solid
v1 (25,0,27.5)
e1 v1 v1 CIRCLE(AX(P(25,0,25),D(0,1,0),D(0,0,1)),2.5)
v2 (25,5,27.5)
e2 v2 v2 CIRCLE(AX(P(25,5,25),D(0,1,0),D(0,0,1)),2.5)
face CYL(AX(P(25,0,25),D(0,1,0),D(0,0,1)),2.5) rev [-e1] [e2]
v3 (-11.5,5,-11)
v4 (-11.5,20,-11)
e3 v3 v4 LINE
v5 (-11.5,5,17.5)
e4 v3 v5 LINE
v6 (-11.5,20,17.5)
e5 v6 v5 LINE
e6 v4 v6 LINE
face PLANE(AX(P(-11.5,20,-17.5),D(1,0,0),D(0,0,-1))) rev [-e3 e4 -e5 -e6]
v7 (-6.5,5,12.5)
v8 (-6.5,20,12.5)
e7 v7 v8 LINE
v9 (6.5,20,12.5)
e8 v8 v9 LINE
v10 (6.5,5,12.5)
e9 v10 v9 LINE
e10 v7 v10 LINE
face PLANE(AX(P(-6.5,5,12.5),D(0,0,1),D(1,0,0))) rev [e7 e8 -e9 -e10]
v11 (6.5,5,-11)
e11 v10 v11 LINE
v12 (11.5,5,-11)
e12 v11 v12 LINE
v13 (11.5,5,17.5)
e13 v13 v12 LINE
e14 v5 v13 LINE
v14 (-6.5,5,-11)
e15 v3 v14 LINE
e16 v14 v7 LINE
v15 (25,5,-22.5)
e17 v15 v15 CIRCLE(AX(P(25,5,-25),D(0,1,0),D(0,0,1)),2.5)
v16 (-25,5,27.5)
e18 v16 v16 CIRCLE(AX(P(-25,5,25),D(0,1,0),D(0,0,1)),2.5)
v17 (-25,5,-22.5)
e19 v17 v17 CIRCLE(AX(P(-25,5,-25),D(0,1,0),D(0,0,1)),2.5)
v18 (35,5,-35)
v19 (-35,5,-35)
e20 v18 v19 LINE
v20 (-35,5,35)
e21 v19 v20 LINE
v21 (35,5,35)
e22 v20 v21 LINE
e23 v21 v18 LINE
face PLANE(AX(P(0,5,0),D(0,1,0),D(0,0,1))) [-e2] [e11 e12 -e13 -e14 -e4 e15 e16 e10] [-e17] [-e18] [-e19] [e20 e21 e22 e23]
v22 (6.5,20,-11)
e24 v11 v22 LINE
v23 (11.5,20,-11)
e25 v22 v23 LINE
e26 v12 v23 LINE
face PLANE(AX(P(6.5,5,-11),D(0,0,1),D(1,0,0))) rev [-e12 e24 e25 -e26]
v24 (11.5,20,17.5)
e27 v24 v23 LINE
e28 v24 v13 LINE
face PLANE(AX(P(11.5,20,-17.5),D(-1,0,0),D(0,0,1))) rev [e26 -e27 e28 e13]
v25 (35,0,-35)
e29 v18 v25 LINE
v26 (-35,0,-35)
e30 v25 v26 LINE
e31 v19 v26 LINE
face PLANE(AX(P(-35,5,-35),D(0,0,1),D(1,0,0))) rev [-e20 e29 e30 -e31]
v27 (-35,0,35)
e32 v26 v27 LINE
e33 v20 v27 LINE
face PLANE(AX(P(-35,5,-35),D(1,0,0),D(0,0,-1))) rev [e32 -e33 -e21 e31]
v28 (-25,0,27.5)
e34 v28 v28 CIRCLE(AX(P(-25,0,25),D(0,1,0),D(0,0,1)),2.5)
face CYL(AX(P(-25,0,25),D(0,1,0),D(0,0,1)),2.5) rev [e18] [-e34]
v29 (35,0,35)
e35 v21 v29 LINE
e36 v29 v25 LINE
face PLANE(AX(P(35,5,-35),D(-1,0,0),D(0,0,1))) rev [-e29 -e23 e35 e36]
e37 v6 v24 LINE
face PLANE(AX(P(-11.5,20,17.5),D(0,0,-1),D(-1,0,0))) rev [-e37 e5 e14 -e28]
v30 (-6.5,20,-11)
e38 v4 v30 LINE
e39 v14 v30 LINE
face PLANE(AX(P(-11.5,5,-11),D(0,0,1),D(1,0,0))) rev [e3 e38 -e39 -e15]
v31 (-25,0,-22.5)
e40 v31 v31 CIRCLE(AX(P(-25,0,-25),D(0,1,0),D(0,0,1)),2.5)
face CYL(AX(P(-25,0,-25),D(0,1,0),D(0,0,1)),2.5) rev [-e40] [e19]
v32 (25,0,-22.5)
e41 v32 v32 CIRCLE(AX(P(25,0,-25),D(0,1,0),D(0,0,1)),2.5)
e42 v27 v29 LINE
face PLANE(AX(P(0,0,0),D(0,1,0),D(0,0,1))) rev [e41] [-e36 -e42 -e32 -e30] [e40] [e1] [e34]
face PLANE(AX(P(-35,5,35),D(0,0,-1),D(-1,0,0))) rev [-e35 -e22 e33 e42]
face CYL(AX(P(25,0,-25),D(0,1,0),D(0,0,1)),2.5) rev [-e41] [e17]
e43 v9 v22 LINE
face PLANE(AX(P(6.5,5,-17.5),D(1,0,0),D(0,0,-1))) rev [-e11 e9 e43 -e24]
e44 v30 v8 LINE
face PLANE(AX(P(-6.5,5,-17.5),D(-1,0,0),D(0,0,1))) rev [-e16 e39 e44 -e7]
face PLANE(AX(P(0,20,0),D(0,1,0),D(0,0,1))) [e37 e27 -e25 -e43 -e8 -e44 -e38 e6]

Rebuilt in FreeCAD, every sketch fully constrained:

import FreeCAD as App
import Part
import Sketcher
from FreeCAD import Vector

doc = App.newDocument("Part")
body = doc.addObject("PartDesign::Body", "Body")

# Sketch on XZ plane
sketch1 = doc.addObject("Sketcher::SketchObject", "Sketch")
body.addObject(sketch1)
sketch1.AttachmentSupport = (doc.XZ_Plane, [""])
sketch1.MapMode = "FlatFace"
sketch1.addGeometry([
    Part.LineSegment(Vector(-35, -35, 0), Vector(-35, 35, 0)),
    Part.LineSegment(Vector(-35, 35, 0), Vector(35, 35, 0)),
    Part.LineSegment(Vector(35, 35, 0), Vector(35, -35, 0)),
    Part.LineSegment(Vector(35, -35, 0), Vector(-35, -35, 0)),
], False)
sketch1.addConstraint([
    Sketcher.Constraint("Coincident", 0, 2, 1, 1),
    Sketcher.Constraint("Coincident", 1, 2, 2, 1),
    Sketcher.Constraint("Coincident", 2, 2, 3, 1),
    Sketcher.Constraint("Coincident", 3, 2, 0, 1),
    Sketcher.Constraint("Vertical", 0),
    Sketcher.Constraint("Horizontal", 1),
    Sketcher.Constraint("Vertical", 2),
    Sketcher.Constraint("Horizontal", 3),
    Sketcher.Constraint("Symmetric", 0, 2, 2, 2, -1, 1),
    Sketcher.Constraint("Equal", 3, 0),
    Sketcher.Constraint("DistanceX", 1, 1, 1, 2, 70.0),
])
pad1 = doc.addObject("PartDesign::Pad", "Pad")
body.addObject(pad1)
pad1.Profile = sketch1
pad1.Length = 5
pad1.Reversed = True

# Sketch on XZ plane
sketch2 = doc.addObject("Sketcher::SketchObject", "Sketch001")
body.addObject(sketch2)
sketch2.AttachmentSupport = (doc.XZ_Plane, [""])
sketch2.MapMode = "FlatFace"
sketch2.AttachmentOffset = App.Placement(Vector(0, 0, -5), App.Rotation())
sketch2.addGeometry(Part.Circle(Vector(-25, -25, 0), Vector(0, 0, 1), 2.5), False)
sketch2.addConstraint([
    Sketcher.Constraint("Diameter", 0, 5.0),
    Sketcher.Constraint("DistanceX", 0, 3, -1, 1, 25.0),
    Sketcher.Constraint("DistanceY", 0, 3, -1, 1, 25.0),
])
pocket1 = doc.addObject("PartDesign::Pocket", "Pocket")
body.addObject(pocket1)
pocket1.Profile = sketch2
pocket1.Length = 5
pocket1.Reversed = True

# Sketch on XZ plane
sketch3 = doc.addObject("Sketcher::SketchObject", "Sketch002")
body.addObject(sketch3)
sketch3.AttachmentSupport = (doc.XZ_Plane, [""])
sketch3.MapMode = "FlatFace"
sketch3.AttachmentOffset = App.Placement(Vector(0, 0, -5), App.Rotation())
sketch3.addGeometry(Part.Circle(Vector(25, -25, 0), Vector(0, 0, 1), 2.5), False)
sketch3.addConstraint([
    Sketcher.Constraint("Diameter", 0, 5.0),
    Sketcher.Constraint("DistanceX", -1, 1, 0, 3, 25.0),
    Sketcher.Constraint("DistanceY", 0, 3, -1, 1, 25.0),
])
pocket2 = doc.addObject("PartDesign::Pocket", "Pocket001")
body.addObject(pocket2)
pocket2.Profile = sketch3
pocket2.Length = 5
pocket2.Reversed = True

# Sketch on XZ plane
sketch4 = doc.addObject("Sketcher::SketchObject", "Sketch003")
body.addObject(sketch4)
sketch4.AttachmentSupport = (doc.XZ_Plane, [""])
sketch4.MapMode = "FlatFace"
sketch4.AttachmentOffset = App.Placement(Vector(0, 0, -5), App.Rotation())
sketch4.addGeometry(Part.Circle(Vector(-25, 25, 0), Vector(0, 0, 1), 2.5), False)
sketch4.addConstraint([
    Sketcher.Constraint("Diameter", 0, 5.0),
    Sketcher.Constraint("DistanceX", 0, 3, -1, 1, 25.0),
    Sketcher.Constraint("DistanceY", -1, 1, 0, 3, 25.0),
])
pocket3 = doc.addObject("PartDesign::Pocket", "Pocket002")
body.addObject(pocket3)
pocket3.Profile = sketch4
pocket3.Length = 5
pocket3.Reversed = True

# Sketch on XZ plane
sketch5 = doc.addObject("Sketcher::SketchObject", "Sketch004")
body.addObject(sketch5)
sketch5.AttachmentSupport = (doc.XZ_Plane, [""])
sketch5.MapMode = "FlatFace"
sketch5.AttachmentOffset = App.Placement(Vector(0, 0, -5), App.Rotation())
sketch5.addGeometry(Part.Circle(Vector(25, 25, 0), Vector(0, 0, 1), 2.5), False)
sketch5.addConstraint([
    Sketcher.Constraint("Diameter", 0, 5.0),
    Sketcher.Constraint("DistanceX", -1, 1, 0, 3, 25.0),
    Sketcher.Constraint("DistanceY", -1, 1, 0, 3, 25.0),
])
pocket4 = doc.addObject("PartDesign::Pocket", "Pocket003")
body.addObject(pocket4)
pocket4.Profile = sketch5
pocket4.Length = 5
pocket4.Reversed = True

# Sketch on XZ plane
sketch6 = doc.addObject("Sketcher::SketchObject", "Sketch005")
body.addObject(sketch6)
sketch6.AttachmentSupport = (doc.XZ_Plane, [""])
sketch6.MapMode = "FlatFace"
sketch6.AttachmentOffset = App.Placement(Vector(0, 0, -5), App.Rotation())
sketch6.addGeometry([
    Part.LineSegment(Vector(-12, -18, 0), Vector(-12, 18, 0)),
    Part.LineSegment(Vector(-12, 18, 0), Vector(12, 18, 0)),
    Part.LineSegment(Vector(12, 18, 0), Vector(12, -18, 0)),
    Part.LineSegment(Vector(12, -18, 0), Vector(-12, -18, 0)),
], False)
sketch6.addConstraint([
    Sketcher.Constraint("Coincident", 0, 2, 1, 1),
    Sketcher.Constraint("Coincident", 1, 2, 2, 1),
    Sketcher.Constraint("Coincident", 2, 2, 3, 1),
    Sketcher.Constraint("Coincident", 3, 2, 0, 1),
    Sketcher.Constraint("Vertical", 0),
    Sketcher.Constraint("Horizontal", 1),
    Sketcher.Constraint("Vertical", 2),
    Sketcher.Constraint("Horizontal", 3),
    Sketcher.Constraint("Symmetric", 0, 2, 2, 2, -1, 1),
    Sketcher.Constraint("DistanceX", 1, 1, 1, 2, 23.0),
    Sketcher.Constraint("DistanceY", 0, 1, 0, 2, 35.0),
])
pad2 = doc.addObject("PartDesign::Pad", "Pad001")
body.addObject(pad2)
pad2.Profile = sketch6
pad2.Length = 15
pad2.Reversed = True

# Sketch on XZ plane
sketch7 = doc.addObject("Sketcher::SketchObject", "Sketch006")
body.addObject(sketch7)
sketch7.AttachmentSupport = (doc.XZ_Plane, [""])
sketch7.MapMode = "FlatFace"
sketch7.AttachmentOffset = App.Placement(Vector(0, 0, -20), App.Rotation())
sketch7.addGeometry([
    Part.LineSegment(Vector(-6, -18, 0), Vector(-6, 12, 0)),
    Part.LineSegment(Vector(-6, 12, 0), Vector(6, 12, 0)),
    Part.LineSegment(Vector(6, 12, 0), Vector(6, -18, 0)),
    Part.LineSegment(Vector(6, -18, 0), Vector(-6, -18, 0)),
], False)
sketch7.addConstraint([
    Sketcher.Constraint("Coincident", 0, 2, 1, 1),
    Sketcher.Constraint("Coincident", 1, 2, 2, 1),
    Sketcher.Constraint("Coincident", 2, 2, 3, 1),
    Sketcher.Constraint("Coincident", 3, 2, 0, 1),
    Sketcher.Constraint("Vertical", 0),
    Sketcher.Constraint("Horizontal", 1),
    Sketcher.Constraint("Vertical", 2),
    Sketcher.Constraint("Horizontal", 3),
    Sketcher.Constraint("DistanceX", 1, 1, 1, 2, 13.0),
    Sketcher.Constraint("DistanceY", 0, 1, 0, 2, 30.0),
    Sketcher.Constraint("DistanceX", 0, 2, -1, 1, 6.5),
    Sketcher.Constraint("DistanceY", -1, 1, 0, 2, 12.5),
])
pocket5 = doc.addObject("PartDesign::Pocket", "Pocket004")
body.addObject(pocket5)
pocket5.Profile = sketch7
pocket5.Length = 15
pocket5.Reversed = True

# Sketch on XZ plane
sketch8 = doc.addObject("Sketcher::SketchObject", "Sketch007")
body.addObject(sketch8)
sketch8.AttachmentSupport = (doc.XZ_Plane, [""])
sketch8.MapMode = "FlatFace"
sketch8.AttachmentOffset = App.Placement(Vector(0, 0, -20), App.Rotation())
sketch8.addGeometry([
    Part.LineSegment(Vector(-12, -18, 0), Vector(-12, -11, 0)),
    Part.LineSegment(Vector(-12, -11, 0), Vector(-6, -11, 0)),
    Part.LineSegment(Vector(-6, -11, 0), Vector(-6, -18, 0)),
    Part.LineSegment(Vector(-6, -18, 0), Vector(-12, -18, 0)),
], False)
sketch8.addConstraint([
    Sketcher.Constraint("Coincident", 0, 2, 1, 1),
    Sketcher.Constraint("Coincident", 1, 2, 2, 1),
    Sketcher.Constraint("Coincident", 2, 2, 3, 1),
    Sketcher.Constraint("Coincident", 3, 2, 0, 1),
    Sketcher.Constraint("Vertical", 0),
    Sketcher.Constraint("Horizontal", 1),
    Sketcher.Constraint("Vertical", 2),
    Sketcher.Constraint("Horizontal", 3),
    Sketcher.Constraint("DistanceX", 1, 1, 1, 2, 5.0),
    Sketcher.Constraint("DistanceY", 0, 1, 0, 2, 6.5),
    Sketcher.Constraint("DistanceY", 0, 2, -1, 1, 11.0),
    Sketcher.Constraint("DistanceX", 0, 2, -1, 1, 11.5),
])
pocket6 = doc.addObject("PartDesign::Pocket", "Pocket005")
body.addObject(pocket6)
pocket6.Profile = sketch8
pocket6.Length = 15
pocket6.Reversed = True

# Sketch on XZ plane
sketch9 = doc.addObject("Sketcher::SketchObject", "Sketch008")
body.addObject(sketch9)
sketch9.AttachmentSupport = (doc.XZ_Plane, [""])
sketch9.MapMode = "FlatFace"
sketch9.AttachmentOffset = App.Placement(Vector(0, 0, -20), App.Rotation())
sketch9.addGeometry([
    Part.LineSegment(Vector(6, -18, 0), Vector(6, -11, 0)),
    Part.LineSegment(Vector(6, -11, 0), Vector(12, -11, 0)),
    Part.LineSegment(Vector(12, -11, 0), Vector(12, -18, 0)),
    Part.LineSegment(Vector(12, -18, 0), Vector(6, -18, 0)),
], False)
sketch9.addConstraint([
    Sketcher.Constraint("Coincident", 0, 2, 1, 1),
    Sketcher.Constraint("Coincident", 1, 2, 2, 1),
    Sketcher.Constraint("Coincident", 2, 2, 3, 1),
    Sketcher.Constraint("Coincident", 3, 2, 0, 1),
    Sketcher.Constraint("Vertical", 0),
    Sketcher.Constraint("Horizontal", 1),
    Sketcher.Constraint("Vertical", 2),
    Sketcher.Constraint("Horizontal", 3),
    Sketcher.Constraint("DistanceX", 1, 1, 1, 2, 5.0),
    Sketcher.Constraint("DistanceY", 0, 1, 0, 2, 6.5),
    Sketcher.Constraint("DistanceY", 0, 2, -1, 1, 11.0),
    Sketcher.Constraint("DistanceX", -1, 1, 0, 2, 6.5),
])
pocket7 = doc.addObject("PartDesign::Pocket", "Pocket006")
body.addObject(pocket7)
pocket7.Profile = sketch9
pocket7.Length = 15
pocket7.Reversed = True

doc.recompute()
